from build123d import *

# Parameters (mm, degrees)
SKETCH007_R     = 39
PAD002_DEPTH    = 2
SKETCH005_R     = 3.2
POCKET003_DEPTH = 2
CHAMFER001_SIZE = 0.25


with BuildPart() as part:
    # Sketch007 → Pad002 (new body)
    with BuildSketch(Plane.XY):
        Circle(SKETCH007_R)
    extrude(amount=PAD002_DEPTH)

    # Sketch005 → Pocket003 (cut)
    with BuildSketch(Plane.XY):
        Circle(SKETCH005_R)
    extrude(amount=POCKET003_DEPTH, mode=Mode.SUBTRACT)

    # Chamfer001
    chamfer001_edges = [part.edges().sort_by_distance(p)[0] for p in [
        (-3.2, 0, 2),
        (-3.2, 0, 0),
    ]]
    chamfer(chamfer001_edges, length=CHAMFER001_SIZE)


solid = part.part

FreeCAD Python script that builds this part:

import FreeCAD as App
import Part
import Sketcher

V = App.Vector
Q = App.Units.Quantity


def edges_at(feature, points):
    """Names of the edges that pass closest to the given points."""
    edges = feature.Shape.Edges
    near = lambda p: min(range(len(edges)), key=lambda i: edges[i].distToShape(Part.Vertex(*p))[0])
    return sorted({f"Edge{near(p) + 1}" for p in points})

doc = App.newDocument("Part")
body = doc.addObject("PartDesign::Body", "Body")

sketch1 = body.newObject("Sketcher::SketchObject", "Sketch")
sketch1.AttachmentSupport = (doc.getObject("XY_Plane"), [""])
sketch1.MapMode = "FlatFace"
sketch1.addGeometry(Part.Circle(V(0, 0, 0), V(0, 0, 1), 39), False)
sketch1.addConstraint([
    Sketcher.Constraint("Coincident", 0, 3, -1, 1),
    Sketcher.Constraint("Diameter", 0, Q("78 mm")),
])
pad1 = body.newObject("PartDesign::Pad", "Pad")
pad1.Profile = sketch1
pad1.Length = 2

sketch2 = body.newObject("Sketcher::SketchObject", "Sketch001")
sketch2.AttachmentSupport = (doc.getObject("XY_Plane"), [""])
sketch2.MapMode = "FlatFace"
sketch2.addGeometry(Part.Circle(V(0, 0, 0), V(0, 0, 1), 3.2), False)
sketch2.addConstraint([
    Sketcher.Constraint("Coincident", 0, 3, -1, 1),
    Sketcher.Constraint("Diameter", 0, Q("6.4 mm")),
])
pocket1 = body.newObject("PartDesign::Pocket", "Pocket")
pocket1.Profile = sketch2
pocket1.Length = 2
pocket1.Reversed = True
doc.recompute()

chamfer = body.newObject("PartDesign::Chamfer", "Chamfer")
chamfer.Base = (pocket1, edges_at(pocket1, [(-3.2, 0, 2), (-3.2, 0, 0)]))
chamfer.Size = 0.25

doc.recompute()
